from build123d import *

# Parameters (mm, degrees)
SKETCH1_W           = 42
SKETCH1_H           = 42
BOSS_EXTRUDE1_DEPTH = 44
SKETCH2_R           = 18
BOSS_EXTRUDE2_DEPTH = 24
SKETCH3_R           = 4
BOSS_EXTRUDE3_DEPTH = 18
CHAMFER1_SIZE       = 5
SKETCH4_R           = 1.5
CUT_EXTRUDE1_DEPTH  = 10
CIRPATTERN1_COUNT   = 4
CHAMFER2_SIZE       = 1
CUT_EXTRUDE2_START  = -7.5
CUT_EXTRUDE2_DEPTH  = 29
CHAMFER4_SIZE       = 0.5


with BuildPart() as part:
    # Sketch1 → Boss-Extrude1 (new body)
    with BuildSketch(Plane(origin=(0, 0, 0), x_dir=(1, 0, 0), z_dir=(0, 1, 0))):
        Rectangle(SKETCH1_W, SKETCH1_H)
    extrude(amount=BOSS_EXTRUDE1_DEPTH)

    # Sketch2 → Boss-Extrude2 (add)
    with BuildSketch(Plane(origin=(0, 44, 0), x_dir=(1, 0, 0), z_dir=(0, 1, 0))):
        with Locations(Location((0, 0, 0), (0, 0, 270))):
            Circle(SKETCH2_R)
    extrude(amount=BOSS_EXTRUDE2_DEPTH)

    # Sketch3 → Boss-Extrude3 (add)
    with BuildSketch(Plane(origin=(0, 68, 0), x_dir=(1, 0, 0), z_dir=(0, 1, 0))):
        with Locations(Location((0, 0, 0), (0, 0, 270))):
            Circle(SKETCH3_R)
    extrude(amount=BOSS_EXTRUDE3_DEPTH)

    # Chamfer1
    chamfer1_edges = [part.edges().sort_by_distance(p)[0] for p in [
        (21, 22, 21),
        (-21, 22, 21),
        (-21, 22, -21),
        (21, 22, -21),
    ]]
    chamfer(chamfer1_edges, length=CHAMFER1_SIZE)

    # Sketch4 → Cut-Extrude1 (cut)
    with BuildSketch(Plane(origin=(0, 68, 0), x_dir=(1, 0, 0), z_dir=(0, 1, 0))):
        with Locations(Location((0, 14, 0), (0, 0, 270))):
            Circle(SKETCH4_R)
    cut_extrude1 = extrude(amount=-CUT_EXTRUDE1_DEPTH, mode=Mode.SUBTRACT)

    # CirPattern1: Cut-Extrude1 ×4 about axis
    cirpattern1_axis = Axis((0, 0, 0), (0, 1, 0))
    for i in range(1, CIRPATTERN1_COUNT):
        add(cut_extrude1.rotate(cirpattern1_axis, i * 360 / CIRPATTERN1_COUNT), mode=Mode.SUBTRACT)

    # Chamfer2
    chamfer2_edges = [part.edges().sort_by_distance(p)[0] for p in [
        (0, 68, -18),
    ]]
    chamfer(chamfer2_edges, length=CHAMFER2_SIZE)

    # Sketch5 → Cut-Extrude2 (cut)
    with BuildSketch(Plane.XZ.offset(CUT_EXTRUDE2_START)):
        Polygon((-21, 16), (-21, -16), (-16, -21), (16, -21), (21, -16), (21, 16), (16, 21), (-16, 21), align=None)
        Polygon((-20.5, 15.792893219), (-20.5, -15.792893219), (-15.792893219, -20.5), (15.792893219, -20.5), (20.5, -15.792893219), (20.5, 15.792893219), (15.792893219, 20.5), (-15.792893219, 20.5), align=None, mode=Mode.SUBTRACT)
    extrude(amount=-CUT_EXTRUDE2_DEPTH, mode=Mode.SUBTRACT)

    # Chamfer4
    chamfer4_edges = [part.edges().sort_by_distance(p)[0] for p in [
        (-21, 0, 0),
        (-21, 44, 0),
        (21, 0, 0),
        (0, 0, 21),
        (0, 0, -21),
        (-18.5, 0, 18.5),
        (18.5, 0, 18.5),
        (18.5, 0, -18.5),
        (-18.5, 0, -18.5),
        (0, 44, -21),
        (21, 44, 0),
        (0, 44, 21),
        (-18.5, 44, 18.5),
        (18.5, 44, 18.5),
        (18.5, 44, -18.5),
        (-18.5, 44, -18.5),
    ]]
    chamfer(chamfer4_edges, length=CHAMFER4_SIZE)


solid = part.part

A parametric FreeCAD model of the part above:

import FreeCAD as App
import Part
import Sketcher


def edges_at(feature, points):
    """Names of the edges that pass closest to the given points."""
    edges = feature.Shape.Edges
    near = lambda p: min(range(len(edges)), key=lambda i: edges[i].distToShape(Part.Vertex(*p))[0])
    return sorted({f"Edge{near(p) + 1}" for p in points})

doc = App.newDocument("Part")
body = doc.addObject("PartDesign::Body", "Body")

sketch1 = body.newObject("Sketcher::SketchObject", "Sketch")
sketch1.AttachmentSupport = (doc.getObject("XZ_Plane"), [""])
sketch1.MapMode = "FlatFace"
sketch1.addGeometry(Part.LineSegment(App.Vector(-21, -21, 0), App.Vector(-21, 21, 0)), False)
sketch1.addGeometry(Part.LineSegment(App.Vector(-21, 21, 0), App.Vector(21, 21, 0)), False)
sketch1.addGeometry(Part.LineSegment(App.Vector(21, 21, 0), App.Vector(21, -21, 0)), False)
sketch1.addGeometry(Part.LineSegment(App.Vector(21, -21, 0), App.Vector(-21, -21, 0)), False)
sketch1.addConstraint(Sketcher.Constraint("Coincident", 0, 2, 1, 1))
sketch1.addConstraint(Sketcher.Constraint("Coincident", 1, 2, 2, 1))
sketch1.addConstraint(Sketcher.Constraint("Coincident", 2, 2, 3, 1))
sketch1.addConstraint(Sketcher.Constraint("Coincident", 3, 2, 0, 1))
sketch1.addConstraint(Sketcher.Constraint("Vertical", 0))
sketch1.addConstraint(Sketcher.Constraint("Horizontal", 1))
sketch1.addConstraint(Sketcher.Constraint("Vertical", 2))
sketch1.addConstraint(Sketcher.Constraint("Horizontal", 3))
sketch1.addConstraint(Sketcher.Constraint("Symmetric", 0, 2, 2, 2, -1, 1))
sketch1.addConstraint(Sketcher.Constraint("Equal", 3, 0))
sketch1.addConstraint(Sketcher.Constraint("DistanceX", 1, 1, 1, 2, 42.0))
pad1 = body.newObject("PartDesign::Pad", "Pad")
pad1.Profile = sketch1
pad1.Length = 44
pad1.Reversed = True

sketch2 = body.newObject("Sketcher::SketchObject", "Sketch001")
sketch2.AttachmentSupport = (doc.getObject("XZ_Plane"), [""])
sketch2.MapMode = "FlatFace"
sketch2.AttachmentOffset = App.Placement(App.Vector(0, 0, -44), App.Rotation())
sketch2.addGeometry(Part.Circle(App.Vector(0, 0, 0), App.Vector(0, 0, 1), 18), False)
sketch2.addConstraint(Sketcher.Constraint("Coincident", 0, 3, -1, 1))
sketch2.addConstraint(Sketcher.Constraint("Diameter", 0, 36.0))
pad2 = body.newObject("PartDesign::Pad", "Pad001")
pad2.Profile = sketch2
pad2.Length = 24
pad2.Reversed = True

sketch3 = body.newObject("Sketcher::SketchObject", "Sketch002")
sketch3.AttachmentSupport = (doc.getObject("XZ_Plane"), [""])
sketch3.MapMode = "FlatFace"
sketch3.AttachmentOffset = App.Placement(App.Vector(0, 0, -68), App.Rotation())
sketch3.addGeometry(Part.Circle(App.Vector(0, 0, 0), App.Vector(0, 0, 1), 4), False)
sketch3.addConstraint(Sketcher.Constraint("Coincident", 0, 3, -1, 1))
sketch3.addConstraint(Sketcher.Constraint("Diameter", 0, 8.0))
pad3 = body.newObject("PartDesign::Pad", "Pad002")
pad3.Profile = sketch3
pad3.Length = 18
pad3.Reversed = True
doc.recompute()

chamfer = body.newObject("PartDesign::Chamfer", "Chamfer")
chamfer.Base = (pad3, edges_at(pad3, [
    (21, 22, 21),
    (-21, 22, 21),
    (-21, 22, -21),
    (21, 22, -21),
]))
chamfer.Size = 5

sketch4 = body.newObject("Sketcher::SketchObject", "Sketch003")
sketch4.AttachmentSupport = (doc.getObject("XZ_Plane"), [""])
sketch4.MapMode = "FlatFace"
sketch4.AttachmentOffset = App.Placement(App.Vector(0, 0, -68), App.Rotation())
sketch4.addGeometry(Part.Circle(App.Vector(0, -14, 0), App.Vector(0, 0, 1), 1.5), False)
sketch4.addConstraint(Sketcher.Constraint("PointOnObject", 0, 3, -2))
sketch4.addConstraint(Sketcher.Constraint("Diameter", 0, 3.0))
sketch4.addConstraint(Sketcher.Constraint("DistanceY", 0, 3, -1, 1, 14.0))
pocket1 = body.newObject("PartDesign::Pocket", "Pocket")
pocket1.Profile = sketch4
pocket1.Length = 10
pocket1.Reversed = True
doc.recompute()

polarpattern = body.newObject("PartDesign::PolarPattern", "PolarPattern")
polarpattern.Originals = [pocket1]
polarpattern.Axis = (doc.getObject("Y_Axis"), [""])
polarpattern.Angle = 360
polarpattern.Occurrences = 4
body.Tip = polarpattern
doc.recompute()

chamfer2 = body.newObject("PartDesign::Chamfer", "Chamfer001")
chamfer2.Base = (polarpattern, edges_at(polarpattern, [(0, 68, -18)]))
chamfer2.Size = 1

sketch5 = body.newObject("Sketcher::SketchObject", "Sketch004")
sketch5.AttachmentSupport = (doc.getObject("XZ_Plane"), [""])
sketch5.MapMode = "FlatFace"
sketch5.AttachmentOffset = App.Placement(App.Vector(0, 0, -7.5), App.Rotation())
sketch5.addGeometry(Part.LineSegment(App.Vector(-21, 16, 0), App.Vector(-21, -16, 0)), False)
sketch5.addGeometry(Part.LineSegment(App.Vector(-21, -16, 0), App.Vector(-16, -21, 0)), False)
sketch5.addGeometry(Part.LineSegment(App.Vector(-16, -21, 0), App.Vector(16, -21, 0)), False)
sketch5.addGeometry(Part.LineSegment(App.Vector(16, -21, 0), App.Vector(21, -16, 0)), False)
sketch5.addGeometry(Part.LineSegment(App.Vector(21, -16, 0), App.Vector(21, 16, 0)), False)
sketch5.addGeometry(Part.LineSegment(App.Vector(21, 16, 0), App.Vector(16, 21, 0)), False)
sketch5.addGeometry(Part.LineSegment(App.Vector(16, 21, 0), App.Vector(-16, 21, 0)), False)
sketch5.addGeometry(Part.LineSegment(App.Vector(-16, 21, 0), App.Vector(-21, 16, 0)), False)
sketch5.addGeometry(Part.LineSegment(App.Vector(-20, -16, 0), App.Vector(-20, 16, 0)), False)
sketch5.addGeometry(Part.LineSegment(App.Vector(-20, 16, 0), App.Vector(-16, 20, 0)), False)
sketch5.addGeometry(Part.LineSegment(App.Vector(-16, 20, 0), App.Vector(16, 20, 0)), False)
sketch5.addGeometry(Part.LineSegment(App.Vector(16, 20, 0), App.Vector(20, 16, 0)), False)
sketch5.addGeometry(Part.LineSegment(App.Vector(20, 16, 0), App.Vector(20, -16, 0)), False)
sketch5.addGeometry(Part.LineSegment(App.Vector(20, -16, 0), App.Vector(16, -20, 0)), False)
sketch5.addGeometry(Part.LineSegment(App.Vector(16, -20, 0), App.Vector(-16, -20, 0)), False)
sketch5.addGeometry(Part.LineSegment(App.Vector(-16, -20, 0), App.Vector(-20, -16, 0)), False)
sketch5.addConstraint(Sketcher.Constraint("Coincident", 0, 2, 1, 1))
sketch5.addConstraint(Sketcher.Constraint("Coincident", 1, 2, 2, 1))
sketch5.addConstraint(Sketcher.Constraint("Coincident", 2, 2, 3, 1))
sketch5.addConstraint(Sketcher.Constraint("Coincident", 3, 2, 4, 1))
sketch5.addConstraint(Sketcher.Constraint("Coincident", 4, 2, 5, 1))
sketch5.addConstraint(Sketcher.Constraint("Coincident", 5, 2, 6, 1))
sketch5.addConstraint(Sketcher.Constraint("Coincident", 6, 2, 7, 1))
sketch5.addConstraint(Sketcher.Constraint("Coincident", 7, 2, 0, 1))
sketch5.addConstraint(Sketcher.Constraint("Coincident", 8, 2, 9, 1))
sketch5.addConstraint(Sketcher.Constraint("Coincident", 9, 2, 10, 1))
sketch5.addConstraint(Sketcher.Constraint("Coincident", 10, 2, 11, 1))
sketch5.addConstraint(Sketcher.Constraint("Coincident", 11, 2, 12, 1))
sketch5.addConstraint(Sketcher.Constraint("Coincident", 12, 2, 13, 1))
sketch5.addConstraint(Sketcher.Constraint("Coincident", 13, 2, 14, 1))
sketch5.addConstraint(Sketcher.Constraint("Coincident", 14, 2, 15, 1))
sketch5.addConstraint(Sketcher.Constraint("Coincident", 15, 2, 8, 1))
sketch5.addConstraint(Sketcher.Constraint("Vertical", 0))
sketch5.addConstraint(Sketcher.Constraint("Horizontal", 2))
sketch5.addConstraint(Sketcher.Constraint("Vertical", 4))
sketch5.addConstraint(Sketcher.Constraint("Horizontal", 6))
sketch5.addConstraint(Sketcher.Constraint("Vertical", 8))
sketch5.addConstraint(Sketcher.Constraint("Horizontal", 10))
sketch5.addConstraint(Sketcher.Constraint("Vertical", 12))
sketch5.addConstraint(Sketcher.Constraint("Horizontal", 14))
sketch5.addConstraint(Sketcher.Constraint("Symmetric", 0, 2, 4, 2, -1, 1))
sketch5.addConstraint(Sketcher.Constraint("Symmetric", 1, 2, 5, 2, -1, 1))
sketch5.addConstraint(Sketcher.Constraint("Symmetric", 8, 2, 12, 2, -1, 1))
sketch5.addConstraint(Sketcher.Constraint("Symmetric", 9, 2, 13, 2, -1, 1))
sketch5.addConstraint(Sketcher.Constraint("Perpendicular", 1, 3))
sketch5.addConstraint(Sketcher.Constraint("Perpendicular", 5, 7))
sketch5.addConstraint(Sketcher.Constraint("Parallel", 7, 9))
sketch5.addConstraint(Sketcher.Constraint("Perpendicular", 9, 11))
sketch5.addConstraint(Sketcher.Constraint("Perpendicular", 13, 15))
sketch5.addConstraint(Sketcher.Constraint("Horizontal", 0, 2, 3, 2))
sketch5.addConstraint(Sketcher.Constraint("Horizontal", 4, 2, 7, 2))
sketch5.addConstraint(Sketcher.Constraint("Horizontal", 8, 2, 11, 2))
sketch5.addConstraint(Sketcher.Constraint("Horizontal", 12, 2, 15, 2))
sketch5.addConstraint(Sketcher.Constraint("Vertical", 2, 2, 5, 2))
sketch5.addConstraint(Sketcher.Constraint("Equal", 6, 0))
sketch5.addConstraint(Sketcher.Constraint("Equal", 14, 8))
sketch5.addConstraint(Sketcher.Constraint("DistanceX", 2, 1, 2, 2, 32.0))
sketch5.addConstraint(Sketcher.Constraint("DistanceX", 0, 2, -1, 1, 21.0))
sketch5.addConstraint(Sketcher.Constraint("DistanceX", 8, 2, -1, 1, 20.5))
sketch5.addConstraint(Sketcher.Constraint("DistanceX", 10, 1, 10, 2, 31.585786))
pocket2 = body.newObject("PartDesign::Pocket", "Pocket001")
pocket2.Profile = sketch5
pocket2.Length = 29
doc.recompute()

chamfer3 = body.newObject("PartDesign::Chamfer", "Chamfer002")
chamfer3.Base = (pocket2, edges_at(pocket2, [
    (-21, 0, 0),
    (-21, 44, 0),
    (21, 0, 0),
    (0, 0, 21),
    (0, 0, -21),
    (-18.5, 0, 18.5),
    (18.5, 0, 18.5),
    (18.5, 0, -18.5),
    (-18.5, 0, -18.5),
    (0, 44, -21),
    (21, 44, 0),
    (0, 44, 21),
    (-18.5, 44, 18.5),
    (18.5, 44, 18.5),
    (18.5, 44, -18.5),
    (-18.5, 44, -18.5),
]))
chamfer3.Size = 0.5

doc.recompute()
